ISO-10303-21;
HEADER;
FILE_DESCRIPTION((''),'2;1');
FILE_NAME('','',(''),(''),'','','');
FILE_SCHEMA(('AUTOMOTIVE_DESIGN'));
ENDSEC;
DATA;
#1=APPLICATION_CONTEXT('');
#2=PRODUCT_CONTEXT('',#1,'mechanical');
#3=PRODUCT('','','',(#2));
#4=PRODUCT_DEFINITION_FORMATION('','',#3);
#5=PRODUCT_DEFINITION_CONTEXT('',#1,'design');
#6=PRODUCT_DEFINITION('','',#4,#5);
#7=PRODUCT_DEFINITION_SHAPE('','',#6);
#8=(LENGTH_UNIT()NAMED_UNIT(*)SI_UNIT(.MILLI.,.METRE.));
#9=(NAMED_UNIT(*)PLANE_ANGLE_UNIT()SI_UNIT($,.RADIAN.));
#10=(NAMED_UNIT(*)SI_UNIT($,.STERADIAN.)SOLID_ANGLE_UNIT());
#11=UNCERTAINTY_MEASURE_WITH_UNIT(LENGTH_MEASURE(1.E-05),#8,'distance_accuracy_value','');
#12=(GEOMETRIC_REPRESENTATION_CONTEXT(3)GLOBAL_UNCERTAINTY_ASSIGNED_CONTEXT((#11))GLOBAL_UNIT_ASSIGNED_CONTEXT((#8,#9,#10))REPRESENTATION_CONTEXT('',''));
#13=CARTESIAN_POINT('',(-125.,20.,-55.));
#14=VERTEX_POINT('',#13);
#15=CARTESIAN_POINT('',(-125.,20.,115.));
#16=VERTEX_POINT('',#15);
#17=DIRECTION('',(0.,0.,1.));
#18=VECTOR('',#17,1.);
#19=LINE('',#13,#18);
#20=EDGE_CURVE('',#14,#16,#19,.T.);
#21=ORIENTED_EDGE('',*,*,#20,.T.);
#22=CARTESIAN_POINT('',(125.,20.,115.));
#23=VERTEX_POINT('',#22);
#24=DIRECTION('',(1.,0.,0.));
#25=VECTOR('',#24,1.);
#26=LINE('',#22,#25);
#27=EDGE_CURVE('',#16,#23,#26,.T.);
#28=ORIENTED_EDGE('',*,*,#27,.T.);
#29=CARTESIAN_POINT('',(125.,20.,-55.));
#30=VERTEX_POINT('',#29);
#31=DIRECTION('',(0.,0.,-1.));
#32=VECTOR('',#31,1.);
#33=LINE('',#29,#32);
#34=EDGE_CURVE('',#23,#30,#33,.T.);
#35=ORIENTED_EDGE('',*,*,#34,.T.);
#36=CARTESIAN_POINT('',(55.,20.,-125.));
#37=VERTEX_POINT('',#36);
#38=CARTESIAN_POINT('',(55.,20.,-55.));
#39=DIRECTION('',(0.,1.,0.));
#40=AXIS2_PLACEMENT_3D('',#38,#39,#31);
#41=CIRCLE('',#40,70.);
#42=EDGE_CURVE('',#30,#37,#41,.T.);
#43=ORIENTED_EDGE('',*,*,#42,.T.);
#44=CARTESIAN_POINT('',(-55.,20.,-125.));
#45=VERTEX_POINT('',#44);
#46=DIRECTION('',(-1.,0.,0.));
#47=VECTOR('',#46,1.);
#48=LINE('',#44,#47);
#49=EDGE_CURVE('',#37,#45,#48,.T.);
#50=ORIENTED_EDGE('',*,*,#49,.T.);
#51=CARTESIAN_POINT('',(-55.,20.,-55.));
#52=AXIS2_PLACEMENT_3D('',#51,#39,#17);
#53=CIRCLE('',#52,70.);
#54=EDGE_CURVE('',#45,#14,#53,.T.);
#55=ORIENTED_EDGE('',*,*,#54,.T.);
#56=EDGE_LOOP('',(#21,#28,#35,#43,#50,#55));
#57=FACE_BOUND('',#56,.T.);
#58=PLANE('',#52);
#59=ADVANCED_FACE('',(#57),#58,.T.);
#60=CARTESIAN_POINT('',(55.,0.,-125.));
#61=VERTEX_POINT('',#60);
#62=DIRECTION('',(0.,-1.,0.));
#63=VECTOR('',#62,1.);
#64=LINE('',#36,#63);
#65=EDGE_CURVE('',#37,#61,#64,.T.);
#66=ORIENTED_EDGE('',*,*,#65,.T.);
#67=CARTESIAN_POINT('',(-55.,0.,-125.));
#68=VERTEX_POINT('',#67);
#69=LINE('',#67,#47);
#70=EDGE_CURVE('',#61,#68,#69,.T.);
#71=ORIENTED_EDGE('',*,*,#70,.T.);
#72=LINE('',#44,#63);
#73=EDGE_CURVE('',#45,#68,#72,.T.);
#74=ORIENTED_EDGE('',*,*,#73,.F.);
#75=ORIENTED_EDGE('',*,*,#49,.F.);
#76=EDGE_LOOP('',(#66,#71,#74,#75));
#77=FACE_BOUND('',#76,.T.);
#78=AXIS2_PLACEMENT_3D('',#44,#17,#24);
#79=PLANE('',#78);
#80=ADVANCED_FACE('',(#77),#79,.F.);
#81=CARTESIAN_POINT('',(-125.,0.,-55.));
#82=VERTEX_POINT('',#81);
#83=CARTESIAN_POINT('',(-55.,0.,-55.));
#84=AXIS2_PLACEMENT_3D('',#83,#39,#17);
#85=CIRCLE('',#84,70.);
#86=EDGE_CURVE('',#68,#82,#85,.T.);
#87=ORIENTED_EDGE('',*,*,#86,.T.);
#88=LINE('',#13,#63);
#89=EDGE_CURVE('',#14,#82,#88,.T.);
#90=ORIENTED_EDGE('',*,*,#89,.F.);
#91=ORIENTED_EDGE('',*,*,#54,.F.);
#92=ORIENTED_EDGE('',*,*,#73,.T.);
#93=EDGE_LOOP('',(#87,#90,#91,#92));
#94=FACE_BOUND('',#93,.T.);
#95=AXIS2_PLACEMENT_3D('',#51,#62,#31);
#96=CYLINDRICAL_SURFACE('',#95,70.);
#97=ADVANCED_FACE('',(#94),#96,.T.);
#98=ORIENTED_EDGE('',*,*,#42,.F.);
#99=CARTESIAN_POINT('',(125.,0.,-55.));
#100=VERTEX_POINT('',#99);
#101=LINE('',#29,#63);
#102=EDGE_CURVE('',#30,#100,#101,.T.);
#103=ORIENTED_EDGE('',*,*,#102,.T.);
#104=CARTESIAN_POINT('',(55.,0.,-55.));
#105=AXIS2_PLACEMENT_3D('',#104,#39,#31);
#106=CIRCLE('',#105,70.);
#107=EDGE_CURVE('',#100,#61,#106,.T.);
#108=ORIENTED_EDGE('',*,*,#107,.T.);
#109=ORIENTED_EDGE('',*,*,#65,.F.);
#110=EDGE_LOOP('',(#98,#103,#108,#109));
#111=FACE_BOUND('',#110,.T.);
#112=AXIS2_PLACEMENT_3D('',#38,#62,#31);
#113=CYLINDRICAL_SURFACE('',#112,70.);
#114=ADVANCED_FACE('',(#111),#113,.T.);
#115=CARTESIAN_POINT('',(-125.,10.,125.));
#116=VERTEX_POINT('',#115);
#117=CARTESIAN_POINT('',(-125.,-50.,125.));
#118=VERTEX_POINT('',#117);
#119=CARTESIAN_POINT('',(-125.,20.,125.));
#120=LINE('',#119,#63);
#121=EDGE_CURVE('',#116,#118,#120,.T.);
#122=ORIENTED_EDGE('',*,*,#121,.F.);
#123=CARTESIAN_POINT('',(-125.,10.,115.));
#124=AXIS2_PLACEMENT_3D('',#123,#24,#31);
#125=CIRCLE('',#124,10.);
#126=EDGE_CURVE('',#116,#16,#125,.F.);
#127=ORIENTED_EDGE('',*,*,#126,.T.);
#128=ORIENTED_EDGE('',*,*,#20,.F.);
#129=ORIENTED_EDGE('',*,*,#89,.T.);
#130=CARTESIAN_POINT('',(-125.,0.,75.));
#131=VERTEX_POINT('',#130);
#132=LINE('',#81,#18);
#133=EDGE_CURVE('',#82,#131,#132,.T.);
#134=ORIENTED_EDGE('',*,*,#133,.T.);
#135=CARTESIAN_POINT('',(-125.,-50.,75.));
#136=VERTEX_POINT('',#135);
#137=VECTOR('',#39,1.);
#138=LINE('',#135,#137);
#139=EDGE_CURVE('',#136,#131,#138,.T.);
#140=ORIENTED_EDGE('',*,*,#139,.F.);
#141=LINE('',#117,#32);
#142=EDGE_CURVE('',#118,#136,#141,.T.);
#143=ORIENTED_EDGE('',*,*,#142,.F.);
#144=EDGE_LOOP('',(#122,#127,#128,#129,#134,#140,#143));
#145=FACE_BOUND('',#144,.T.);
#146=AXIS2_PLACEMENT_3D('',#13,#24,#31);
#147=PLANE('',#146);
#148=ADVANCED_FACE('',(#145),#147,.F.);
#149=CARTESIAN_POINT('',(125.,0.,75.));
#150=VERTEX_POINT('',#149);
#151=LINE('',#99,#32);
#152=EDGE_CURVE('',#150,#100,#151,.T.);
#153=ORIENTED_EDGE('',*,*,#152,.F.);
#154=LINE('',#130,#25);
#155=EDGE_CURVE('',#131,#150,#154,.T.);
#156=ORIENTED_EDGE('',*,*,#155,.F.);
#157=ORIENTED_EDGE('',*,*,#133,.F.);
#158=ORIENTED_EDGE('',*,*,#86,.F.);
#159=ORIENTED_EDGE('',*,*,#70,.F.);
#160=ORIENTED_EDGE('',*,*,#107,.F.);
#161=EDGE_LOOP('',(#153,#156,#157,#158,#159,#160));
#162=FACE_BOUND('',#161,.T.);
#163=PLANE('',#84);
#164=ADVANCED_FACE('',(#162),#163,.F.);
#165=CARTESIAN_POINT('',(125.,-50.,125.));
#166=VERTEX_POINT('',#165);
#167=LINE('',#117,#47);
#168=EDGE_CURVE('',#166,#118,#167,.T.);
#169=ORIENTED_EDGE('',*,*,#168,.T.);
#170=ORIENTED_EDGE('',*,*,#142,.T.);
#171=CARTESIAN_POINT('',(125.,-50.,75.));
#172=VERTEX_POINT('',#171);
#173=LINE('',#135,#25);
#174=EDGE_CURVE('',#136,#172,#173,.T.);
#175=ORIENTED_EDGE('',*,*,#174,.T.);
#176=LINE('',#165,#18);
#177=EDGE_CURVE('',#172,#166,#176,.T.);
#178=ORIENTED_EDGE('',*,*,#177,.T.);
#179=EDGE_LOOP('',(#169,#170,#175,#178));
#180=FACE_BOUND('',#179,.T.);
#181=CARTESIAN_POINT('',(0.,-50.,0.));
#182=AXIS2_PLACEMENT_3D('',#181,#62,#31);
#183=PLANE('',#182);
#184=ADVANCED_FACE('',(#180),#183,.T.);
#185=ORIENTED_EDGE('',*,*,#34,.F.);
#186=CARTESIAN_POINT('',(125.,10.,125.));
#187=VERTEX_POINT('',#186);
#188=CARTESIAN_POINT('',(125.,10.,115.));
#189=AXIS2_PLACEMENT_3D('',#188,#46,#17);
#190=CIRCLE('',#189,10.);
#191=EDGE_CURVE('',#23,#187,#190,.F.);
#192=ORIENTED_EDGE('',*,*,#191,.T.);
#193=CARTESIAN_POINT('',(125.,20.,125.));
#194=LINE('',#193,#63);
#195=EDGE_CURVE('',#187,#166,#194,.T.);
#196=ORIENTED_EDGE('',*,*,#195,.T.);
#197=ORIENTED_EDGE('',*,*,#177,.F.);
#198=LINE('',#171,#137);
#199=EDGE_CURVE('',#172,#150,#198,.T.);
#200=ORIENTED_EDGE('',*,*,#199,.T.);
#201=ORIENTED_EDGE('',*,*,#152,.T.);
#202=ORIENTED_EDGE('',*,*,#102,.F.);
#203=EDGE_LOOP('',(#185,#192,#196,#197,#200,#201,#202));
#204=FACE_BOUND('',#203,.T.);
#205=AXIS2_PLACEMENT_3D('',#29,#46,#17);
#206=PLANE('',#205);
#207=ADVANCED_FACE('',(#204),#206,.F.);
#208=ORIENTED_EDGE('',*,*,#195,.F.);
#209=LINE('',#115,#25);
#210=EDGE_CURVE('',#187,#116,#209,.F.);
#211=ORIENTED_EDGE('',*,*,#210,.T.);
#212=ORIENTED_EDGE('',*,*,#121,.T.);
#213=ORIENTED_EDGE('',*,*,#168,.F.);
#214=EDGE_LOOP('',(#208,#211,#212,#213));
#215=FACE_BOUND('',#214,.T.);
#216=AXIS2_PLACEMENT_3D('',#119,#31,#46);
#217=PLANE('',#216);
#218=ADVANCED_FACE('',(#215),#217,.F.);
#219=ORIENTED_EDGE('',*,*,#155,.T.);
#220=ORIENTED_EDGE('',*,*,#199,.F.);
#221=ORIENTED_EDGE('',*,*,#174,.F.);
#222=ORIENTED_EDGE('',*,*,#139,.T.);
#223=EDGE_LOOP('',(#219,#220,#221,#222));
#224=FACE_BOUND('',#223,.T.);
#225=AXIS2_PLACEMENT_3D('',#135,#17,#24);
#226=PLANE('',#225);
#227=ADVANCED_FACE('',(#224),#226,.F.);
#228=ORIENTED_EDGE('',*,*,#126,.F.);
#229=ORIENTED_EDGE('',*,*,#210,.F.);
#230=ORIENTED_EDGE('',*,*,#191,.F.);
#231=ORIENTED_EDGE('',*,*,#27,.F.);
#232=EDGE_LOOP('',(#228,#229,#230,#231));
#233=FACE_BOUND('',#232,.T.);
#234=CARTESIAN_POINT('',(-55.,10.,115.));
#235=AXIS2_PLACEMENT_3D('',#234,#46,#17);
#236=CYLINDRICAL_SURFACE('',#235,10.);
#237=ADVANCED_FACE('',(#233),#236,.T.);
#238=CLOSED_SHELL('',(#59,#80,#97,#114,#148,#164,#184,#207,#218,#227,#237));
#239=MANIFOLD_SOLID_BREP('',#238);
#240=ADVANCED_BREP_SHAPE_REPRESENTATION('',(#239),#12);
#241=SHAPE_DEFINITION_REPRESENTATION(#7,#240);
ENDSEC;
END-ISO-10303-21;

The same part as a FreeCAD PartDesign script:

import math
import FreeCAD as App
import Part
import Sketcher

V = App.Vector
Q = App.Units.Quantity


def edges_at(feature, points):
    """Names of the edges that pass closest to the given points."""
    edges = feature.Shape.Edges
    near = lambda p: min(range(len(edges)), key=lambda i: edges[i].distToShape(Part.Vertex(*p))[0])
    return sorted({f"Edge{near(p) + 1}" for p in points})


def add_polygon(sketch, points):
    """Adds a closed chain of lines whose ends are joined by coincident constraints."""
    first, n = sketch.GeometryCount, len(points)
    for a, b in zip(points, points[1:] + points[:1]):
        sketch.addGeometry(Part.LineSegment(App.Vector(*a, 0), App.Vector(*b, 0)), False)
    for i in range(n):
        sketch.addConstraint(Sketcher.Constraint("Coincident", first + i, 2, first + (i + 1) % n, 1))

doc = App.newDocument("Part")
body = doc.addObject("PartDesign::Body", "Body")

sketch1 = doc.addObject("Sketcher::SketchObject", "Sketch")
body.addObject(sketch1)
sketch1.AttachmentSupport = (doc.XZ_Plane, [""])
sketch1.MapMode = "FlatFace"
sketch1.addGeometry(Part.LineSegment(V(55, -125, 0), V(-55, -125, 0)), False)
sketch1.addGeometry(Part.ArcOfCircle(Part.Circle(V(-55, -55, 0), V(0, 0, 1), 70), math.radians(180), math.radians(270)), False)
sketch1.addGeometry(Part.LineSegment(V(-125, -55, 0), V(-125, 125, 0)), False)
sketch1.addGeometry(Part.LineSegment(V(-125, 125, 0), V(125, 125, 0)), False)
sketch1.addGeometry(Part.LineSegment(V(125, 125, 0), V(125, -55, 0)), False)
sketch1.addGeometry(Part.ArcOfCircle(Part.Circle(V(55, -55, 0), V(0, 0, 1), 70), math.radians(-90), math.radians(0)), False)
sketch1.addConstraint(Sketcher.Constraint("Tangent", 0, 2, 1, 2))
sketch1.addConstraint(Sketcher.Constraint("Tangent", 1, 1, 2, 1))
sketch1.addConstraint(Sketcher.Constraint("Coincident", 2, 2, 3, 1))
sketch1.addConstraint(Sketcher.Constraint("Coincident", 3, 2, 4, 1))
sketch1.addConstraint(Sketcher.Constraint("Tangent", 4, 2, 5, 2))
sketch1.addConstraint(Sketcher.Constraint("Tangent", 5, 1, 0, 1))
sketch1.addConstraint(Sketcher.Constraint("Horizontal", 0))
sketch1.addConstraint(Sketcher.Constraint("Vertical", 2))
sketch1.addConstraint(Sketcher.Constraint("Horizontal", 3))
sketch1.addConstraint(Sketcher.Constraint("Vertical", 4))
sketch1.addConstraint(Sketcher.Constraint("Equal", 1, 5))
sketch1.addConstraint(Sketcher.Constraint("Radius", 1, Q("70 mm")))
sketch1.addConstraint(Sketcher.Constraint("DistanceX", 0, 2, 0, 1, Q("110 mm")))
sketch1.addConstraint(Sketcher.Constraint("DistanceY", 2, 1, 2, 2, Q("180 mm")))
sketch1.addConstraint(Sketcher.Constraint("DistanceX", 1, 3, -1, 1, Q("55 mm")))
sketch1.addConstraint(Sketcher.Constraint("DistanceY", 1, 3, -1, 1, Q("55 mm")))
pad1 = doc.addObject("PartDesign::Pad", "Pad")
body.addObject(pad1)
pad1.Profile = sketch1
pad1.Length = 20
pad1.Reversed = True

sketch2 = doc.addObject("Sketcher::SketchObject", "Sketch001")
body.addObject(sketch2)
sketch2.AttachmentSupport = (doc.XZ_Plane, [""])
sketch2.MapMode = "FlatFace"
add_polygon(sketch2, [(-125, 125), (-125, 75), (125, 75), (125, 125)])
sketch2.addConstraint(Sketcher.Constraint("Vertical", 0))
sketch2.addConstraint(Sketcher.Constraint("Horizontal", 1))
sketch2.addConstraint(Sketcher.Constraint("Vertical", 2))
sketch2.addConstraint(Sketcher.Constraint("Horizontal", 3))
sketch2.addConstraint(Sketcher.Constraint("DistanceX", 1, 1, 1, 2, Q("250 mm")))
sketch2.addConstraint(Sketcher.Constraint("DistanceY", 0, 2, 0, 1, Q("50 mm")))
sketch2.addConstraint(Sketcher.Constraint("DistanceX", 0, 2, -1, 1, Q("125 mm")))
sketch2.addConstraint(Sketcher.Constraint("DistanceY", -1, 1, 0, 2, Q("75 mm")))
pad2 = doc.addObject("PartDesign::Pad", "Pad001")
body.addObject(pad2)
pad2.Profile = sketch2
pad2.Length = 50
doc.recompute()

fillet = doc.addObject("PartDesign::Fillet", "Fillet")
body.addObject(fillet)
fillet.Base = (pad2, edges_at(pad2, [(0, 20, 125)]))
fillet.Radius = 10

doc.recompute()
